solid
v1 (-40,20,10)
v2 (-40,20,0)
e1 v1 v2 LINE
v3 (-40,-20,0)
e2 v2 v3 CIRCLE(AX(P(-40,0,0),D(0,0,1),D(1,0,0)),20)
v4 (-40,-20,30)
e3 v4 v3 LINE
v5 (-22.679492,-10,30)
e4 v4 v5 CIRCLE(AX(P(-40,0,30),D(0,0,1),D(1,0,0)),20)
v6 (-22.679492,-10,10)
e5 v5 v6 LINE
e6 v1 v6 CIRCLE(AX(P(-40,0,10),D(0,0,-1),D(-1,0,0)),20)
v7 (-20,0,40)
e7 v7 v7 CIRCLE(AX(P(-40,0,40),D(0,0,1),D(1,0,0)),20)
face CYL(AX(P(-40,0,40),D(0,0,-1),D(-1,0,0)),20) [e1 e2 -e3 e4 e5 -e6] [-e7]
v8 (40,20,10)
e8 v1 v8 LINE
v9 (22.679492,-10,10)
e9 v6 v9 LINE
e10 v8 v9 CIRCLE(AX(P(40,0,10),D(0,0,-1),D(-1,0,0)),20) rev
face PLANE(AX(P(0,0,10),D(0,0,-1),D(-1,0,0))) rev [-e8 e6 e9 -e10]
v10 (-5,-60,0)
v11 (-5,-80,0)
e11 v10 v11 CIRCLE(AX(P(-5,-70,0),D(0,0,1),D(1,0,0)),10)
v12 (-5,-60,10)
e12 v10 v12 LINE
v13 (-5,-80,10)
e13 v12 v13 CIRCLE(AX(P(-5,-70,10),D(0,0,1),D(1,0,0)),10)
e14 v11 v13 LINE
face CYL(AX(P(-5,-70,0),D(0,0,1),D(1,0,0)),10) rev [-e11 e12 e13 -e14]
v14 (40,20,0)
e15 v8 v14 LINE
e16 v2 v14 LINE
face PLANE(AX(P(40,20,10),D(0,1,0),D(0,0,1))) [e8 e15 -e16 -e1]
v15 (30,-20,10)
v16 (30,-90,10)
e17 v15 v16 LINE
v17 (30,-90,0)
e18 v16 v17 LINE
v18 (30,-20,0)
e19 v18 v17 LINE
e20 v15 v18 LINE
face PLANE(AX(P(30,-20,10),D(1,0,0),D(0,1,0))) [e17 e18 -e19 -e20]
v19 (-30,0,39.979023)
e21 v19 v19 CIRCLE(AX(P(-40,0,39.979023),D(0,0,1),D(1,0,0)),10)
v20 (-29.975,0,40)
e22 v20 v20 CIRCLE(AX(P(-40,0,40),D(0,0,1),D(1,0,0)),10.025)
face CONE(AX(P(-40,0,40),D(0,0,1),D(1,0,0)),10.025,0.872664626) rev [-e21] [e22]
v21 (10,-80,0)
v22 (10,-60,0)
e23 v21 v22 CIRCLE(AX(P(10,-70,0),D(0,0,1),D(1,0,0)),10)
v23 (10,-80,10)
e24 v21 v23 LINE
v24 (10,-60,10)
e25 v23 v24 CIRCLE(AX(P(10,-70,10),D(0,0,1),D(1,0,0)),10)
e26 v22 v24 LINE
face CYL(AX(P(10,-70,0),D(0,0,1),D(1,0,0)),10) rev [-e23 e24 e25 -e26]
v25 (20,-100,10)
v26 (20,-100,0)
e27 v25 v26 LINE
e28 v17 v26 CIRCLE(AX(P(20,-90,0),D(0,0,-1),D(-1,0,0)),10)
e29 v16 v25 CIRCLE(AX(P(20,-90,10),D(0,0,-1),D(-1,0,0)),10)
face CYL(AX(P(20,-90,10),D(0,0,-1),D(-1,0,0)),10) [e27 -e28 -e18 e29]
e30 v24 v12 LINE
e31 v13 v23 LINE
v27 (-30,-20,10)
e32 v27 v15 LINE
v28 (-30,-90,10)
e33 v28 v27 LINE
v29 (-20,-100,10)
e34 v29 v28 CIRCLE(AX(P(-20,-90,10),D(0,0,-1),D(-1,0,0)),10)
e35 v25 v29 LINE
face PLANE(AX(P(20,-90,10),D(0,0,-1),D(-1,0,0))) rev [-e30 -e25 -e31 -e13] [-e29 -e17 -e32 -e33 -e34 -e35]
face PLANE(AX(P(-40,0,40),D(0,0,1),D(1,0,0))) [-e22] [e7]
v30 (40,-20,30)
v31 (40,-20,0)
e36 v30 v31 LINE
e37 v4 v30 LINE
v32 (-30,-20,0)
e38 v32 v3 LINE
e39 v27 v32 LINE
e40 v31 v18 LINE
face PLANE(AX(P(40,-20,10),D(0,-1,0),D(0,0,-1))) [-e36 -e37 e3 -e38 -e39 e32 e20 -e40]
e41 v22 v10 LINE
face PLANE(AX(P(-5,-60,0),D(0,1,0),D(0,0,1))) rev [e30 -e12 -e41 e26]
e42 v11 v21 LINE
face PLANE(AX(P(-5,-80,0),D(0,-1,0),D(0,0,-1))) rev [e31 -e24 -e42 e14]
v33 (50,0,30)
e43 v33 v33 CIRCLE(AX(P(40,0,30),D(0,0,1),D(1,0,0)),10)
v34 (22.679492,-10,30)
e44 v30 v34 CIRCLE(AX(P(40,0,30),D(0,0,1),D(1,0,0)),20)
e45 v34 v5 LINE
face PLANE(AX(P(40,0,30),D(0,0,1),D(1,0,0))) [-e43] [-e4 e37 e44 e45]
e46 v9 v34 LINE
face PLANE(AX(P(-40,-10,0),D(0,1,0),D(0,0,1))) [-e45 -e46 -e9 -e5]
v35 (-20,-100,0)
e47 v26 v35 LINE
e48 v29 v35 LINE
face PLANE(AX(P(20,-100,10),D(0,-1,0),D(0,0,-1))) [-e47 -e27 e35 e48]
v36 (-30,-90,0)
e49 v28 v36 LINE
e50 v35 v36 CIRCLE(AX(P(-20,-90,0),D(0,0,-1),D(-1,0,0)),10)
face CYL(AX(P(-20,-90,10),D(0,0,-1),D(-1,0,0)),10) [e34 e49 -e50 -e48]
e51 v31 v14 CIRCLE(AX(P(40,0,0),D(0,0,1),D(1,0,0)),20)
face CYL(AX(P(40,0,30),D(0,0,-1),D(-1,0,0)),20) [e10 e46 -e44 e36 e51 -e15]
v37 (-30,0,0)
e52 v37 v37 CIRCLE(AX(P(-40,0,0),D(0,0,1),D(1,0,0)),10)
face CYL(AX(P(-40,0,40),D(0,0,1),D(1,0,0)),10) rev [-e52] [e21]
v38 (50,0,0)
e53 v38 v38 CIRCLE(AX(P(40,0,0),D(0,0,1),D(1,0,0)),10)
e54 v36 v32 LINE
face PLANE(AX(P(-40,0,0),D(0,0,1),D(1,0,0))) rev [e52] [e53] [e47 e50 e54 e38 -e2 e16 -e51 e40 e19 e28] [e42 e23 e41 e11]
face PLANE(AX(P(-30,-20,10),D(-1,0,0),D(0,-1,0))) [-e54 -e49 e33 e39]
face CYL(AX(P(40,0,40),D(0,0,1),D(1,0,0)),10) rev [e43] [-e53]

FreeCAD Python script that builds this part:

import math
import FreeCAD as App
import Part
import Sketcher
Q = App.Units.Quantity

doc = App.newDocument("Part")
body = doc.addObject("PartDesign::Body", "Body")

# Sketch on XY plane
sketch1 = body.newObject("Sketcher::SketchObject", "Sketch")
sketch1.AttachmentSupport = (doc.getObject("XY_Plane"), [""])
sketch1.MapMode = "FlatFace"
sketch1.addGeometry(Part.Circle(App.Vector(-40, 0, 0), App.Vector(0, 0, 1), 20), False)
sketch1.addConstraint(Sketcher.Constraint("PointOnObject", 0, 3, -1))
sketch1.addConstraint(Sketcher.Constraint("Diameter", 0, Q("40 mm")))
sketch1.addConstraint(Sketcher.Constraint("DistanceX", 0, 3, -1, 1, Q("40 mm")))
pad1 = body.newObject("PartDesign::Pad", "Pad")
pad1.Profile = sketch1
pad1.Length = 40
body2 = doc.addObject("PartDesign::Body", "Body001")

# Sketch on XY plane
sketch2 = body2.newObject("Sketcher::SketchObject", "Sketch001")
sketch2.AttachmentSupport = (doc.getObject("XY_Plane001"), [""])
sketch2.MapMode = "FlatFace"
sketch2.addGeometry(Part.Circle(App.Vector(40, 0, 0), App.Vector(0, 0, 1), 20), False)
sketch2.addConstraint(Sketcher.Constraint("PointOnObject", 0, 3, -1))
sketch2.addConstraint(Sketcher.Constraint("Diameter", 0, Q("40 mm")))
sketch2.addConstraint(Sketcher.Constraint("DistanceX", -1, 1, 0, 3, Q("40 mm")))
pad2 = body2.newObject("PartDesign::Pad", "Pad001")
pad2.Profile = sketch2
pad2.Length = 30
body.AllowCompound = True
doc.recompute()

boolean = body.newObject("PartDesign::Boolean", "Boolean")
boolean.Type = "Fuse"
boolean.addObjects([body2])

# Sketch on XY plane
sketch3 = body.newObject("Sketcher::SketchObject", "Sketch002")
sketch3.AttachmentSupport = (doc.getObject("XY_Plane"), [""])
sketch3.MapMode = "FlatFace"
sketch3.addGeometry(Part.LineSegment(App.Vector(40, 20, 0), App.Vector(40, -20, 0)), False)
sketch3.addGeometry(Part.LineSegment(App.Vector(40, -20, 0), App.Vector(-40, -20, 0)), False)
sketch3.addGeometry(Part.LineSegment(App.Vector(-40, -20, 0), App.Vector(-40, 20, 0)), False)
sketch3.addGeometry(Part.LineSegment(App.Vector(-40, 20, 0), App.Vector(40, 20, 0)), False)
sketch3.addConstraint(Sketcher.Constraint("Coincident", 0, 2, 1, 1))
sketch3.addConstraint(Sketcher.Constraint("Coincident", 1, 2, 2, 1))
sketch3.addConstraint(Sketcher.Constraint("Coincident", 2, 2, 3, 1))
sketch3.addConstraint(Sketcher.Constraint("Coincident", 3, 2, 0, 1))
sketch3.addConstraint(Sketcher.Constraint("Vertical", 0))
sketch3.addConstraint(Sketcher.Constraint("Horizontal", 1))
sketch3.addConstraint(Sketcher.Constraint("Vertical", 2))
sketch3.addConstraint(Sketcher.Constraint("Horizontal", 3))
sketch3.addConstraint(Sketcher.Constraint("Symmetric", 0, 2, 2, 2, -1, 1))
sketch3.addConstraint(Sketcher.Constraint("DistanceX", 1, 2, 1, 1, Q("80 mm")))
sketch3.addConstraint(Sketcher.Constraint("DistanceY", 0, 2, 0, 1, Q("40 mm")))
pad3 = body.newObject("PartDesign::Pad", "Pad002")
pad3.Profile = sketch3
pad3.Length = 10

# Sketch on XY plane
sketch4 = body.newObject("Sketcher::SketchObject", "Sketch003")
sketch4.AttachmentSupport = (doc.getObject("XY_Plane"), [""])
sketch4.MapMode = "FlatFace"
sketch4.AttachmentOffset = App.Placement(App.Vector(0, 0, 30), App.Rotation())
sketch4.addGeometry(Part.LineSegment(App.Vector(-40, -10, 0), App.Vector(-40, -20, 0)), False)
sketch4.addGeometry(Part.LineSegment(App.Vector(-40, -20, 0), App.Vector(40, -20, 0)), False)
sketch4.addGeometry(Part.LineSegment(App.Vector(40, -20, 0), App.Vector(40, -10, 0)), False)
sketch4.addGeometry(Part.LineSegment(App.Vector(40, -10, 0), App.Vector(-40, -10, 0)), False)
sketch4.addConstraint(Sketcher.Constraint("Coincident", 0, 2, 1, 1))
sketch4.addConstraint(Sketcher.Constraint("Coincident", 1, 2, 2, 1))
sketch4.addConstraint(Sketcher.Constraint("Coincident", 2, 2, 3, 1))
sketch4.addConstraint(Sketcher.Constraint("Coincident", 3, 2, 0, 1))
sketch4.addConstraint(Sketcher.Constraint("Vertical", 0))
sketch4.addConstraint(Sketcher.Constraint("Horizontal", 1))
sketch4.addConstraint(Sketcher.Constraint("Vertical", 2))
sketch4.addConstraint(Sketcher.Constraint("Horizontal", 3))
sketch4.addConstraint(Sketcher.Constraint("DistanceX", 1, 1, 1, 2, Q("80 mm")))
sketch4.addConstraint(Sketcher.Constraint("DistanceY", 0, 2, 0, 1, Q("10 mm")))
sketch4.addConstraint(Sketcher.Constraint("DistanceX", 0, 2, -1, 1, Q("40 mm")))
sketch4.addConstraint(Sketcher.Constraint("DistanceY", 0, 2, -1, 1, Q("20 mm")))
pad4 = body.newObject("PartDesign::Pad", "Pad003")
pad4.Profile = sketch4
pad4.Length = 30
pad4.Reversed = True

# Sketch on XY plane
sketch5 = body.newObject("Sketcher::SketchObject", "Sketch004")
sketch5.AttachmentSupport = (doc.getObject("XY_Plane"), [""])
sketch5.MapMode = "FlatFace"
sketch5.addGeometry(Part.LineSegment(App.Vector(-30, -20, 0), App.Vector(30, -20, 0)), False)
sketch5.addGeometry(Part.LineSegment(App.Vector(30, -20, 0), App.Vector(30, -90, 0)), False)
sketch5.addGeometry(Part.ArcOfCircle(Part.Circle(App.Vector(20, -90, 0), App.Vector(0, 0, 1), 10), math.radians(-90), math.radians(0)), False)
sketch5.addGeometry(Part.LineSegment(App.Vector(20, -100, 0), App.Vector(-20, -100, 0)), False)
sketch5.addGeometry(Part.ArcOfCircle(Part.Circle(App.Vector(-20, -90, 0), App.Vector(0, 0, 1), 10), math.radians(180), math.radians(270)), False)
sketch5.addGeometry(Part.LineSegment(App.Vector(-30, -90, 0), App.Vector(-30, -20, 0)), False)
sketch5.addConstraint(Sketcher.Constraint("Coincident", 0, 2, 1, 1))
sketch5.addConstraint(Sketcher.Constraint("Tangent", 1, 2, 2, 2))
sketch5.addConstraint(Sketcher.Constraint("Tangent", 2, 1, 3, 1))
sketch5.addConstraint(Sketcher.Constraint("Tangent", 3, 2, 4, 2))
sketch5.addConstraint(Sketcher.Constraint("Tangent", 4, 1, 5, 1))
sketch5.addConstraint(Sketcher.Constraint("Coincident", 5, 2, 0, 1))
sketch5.addConstraint(Sketcher.Constraint("Horizontal", 0))
sketch5.addConstraint(Sketcher.Constraint("Vertical", 1))
sketch5.addConstraint(Sketcher.Constraint("Horizontal", 3))
sketch5.addConstraint(Sketcher.Constraint("Vertical", 5))
sketch5.addConstraint(Sketcher.Constraint("Equal", 2, 4))
sketch5.addConstraint(Sketcher.Constraint("Radius", 2, Q("10 mm")))
sketch5.addConstraint(Sketcher.Constraint("DistanceX", 0, 1, 0, 2, Q("60 mm")))
sketch5.addConstraint(Sketcher.Constraint("DistanceY", 1, 2, 1, 1, Q("70 mm")))
sketch5.addConstraint(Sketcher.Constraint("DistanceX", -1, 1, 2, 3, Q("20 mm")))
sketch5.addConstraint(Sketcher.Constraint("DistanceY", 2, 3, -1, 1, Q("90 mm")))
pad5 = body.newObject("PartDesign::Pad", "Pad004")
pad5.Profile = sketch5
pad5.Length = 10

# Sketch on XY plane
sketch6 = body.newObject("Sketcher::SketchObject", "Sketch005")
sketch6.AttachmentSupport = (doc.getObject("XY_Plane"), [""])
sketch6.MapMode = "FlatFace"
sketch6.AttachmentOffset = App.Placement(App.Vector(0, 0, 10), App.Rotation())
sketch6.addGeometry(Part.LineSegment(App.Vector(10, -60, 0), App.Vector(-5, -60, 0)), False)
sketch6.addGeometry(Part.ArcOfCircle(Part.Circle(App.Vector(-5, -70, 0), App.Vector(0, 0, 1), 10), math.radians(90), math.radians(270)), False)
sketch6.addGeometry(Part.LineSegment(App.Vector(-5, -80, 0), App.Vector(10, -80, 0)), False)
sketch6.addGeometry(Part.ArcOfCircle(Part.Circle(App.Vector(10, -70, 0), App.Vector(0, 0, 1), 10), math.radians(-90), math.radians(90)), False)
sketch6.addConstraint(Sketcher.Constraint("Tangent", 0, 2, 1, 1))
sketch6.addConstraint(Sketcher.Constraint("Tangent", 1, 2, 2, 1))
sketch6.addConstraint(Sketcher.Constraint("Tangent", 2, 2, 3, 1))
sketch6.addConstraint(Sketcher.Constraint("Tangent", 3, 2, 0, 1))
sketch6.addConstraint(Sketcher.Constraint("Horizontal", 0))
sketch6.addConstraint(Sketcher.Constraint("Horizontal", 2))
sketch6.addConstraint(Sketcher.Constraint("Radius", 1, Q("10 mm")))
sketch6.addConstraint(Sketcher.Constraint("DistanceX", 0, 2, 0, 1, Q("15 mm")))
sketch6.addConstraint(Sketcher.Constraint("DistanceX", 1, 3, -1, 1, Q("5 mm")))
sketch6.addConstraint(Sketcher.Constraint("DistanceY", 1, 3, -1, 1, Q("70 mm")))
pocket1 = body.newObject("PartDesign::Pocket", "Pocket")
pocket1.Profile = sketch6
pocket1.Type = "ThroughAll"

# Sketch on XY plane
sketch7 = body.newObject("Sketcher::SketchObject", "Sketch006")
sketch7.AttachmentSupport = (doc.getObject("XY_Plane"), [""])
sketch7.MapMode = "FlatFace"
sketch7.AttachmentOffset = App.Placement(App.Vector(0, 0, 40), App.Rotation())
sketch7.addGeometry(Part.Circle(App.Vector(-40, 0, 0), App.Vector(0, 0, 1), 10), False)
sketch7.addGeometry(Part.Circle(App.Vector(40, 0, 0), App.Vector(0, 0, 1), 10), False)
sketch7.addConstraint(Sketcher.Constraint("Equal", 0, 1))
sketch7.addConstraint(Sketcher.Constraint("Symmetric", 0, 3, 1, 3, -1, 1))
sketch7.addConstraint(Sketcher.Constraint("PointOnObject", 0, 3, -1))
sketch7.addConstraint(Sketcher.Constraint("Diameter", 0, Q("20 mm")))
sketch7.addConstraint(Sketcher.Constraint("DistanceX", 0, 3, -1, 1, Q("40 mm")))
doc.recompute()
hole = body.newObject("PartDesign::Hole", "Hole")
hole.Profile = sketch7
hole.ThreadType = "None"
hole.Diameter = 20
hole.DepthType = "ThroughAll"
hole.HoleCutType = "Countersink"
hole.HoleCutDiameter = 20.05
hole.HoleCutCountersinkAngle = 100

doc.recompute()
